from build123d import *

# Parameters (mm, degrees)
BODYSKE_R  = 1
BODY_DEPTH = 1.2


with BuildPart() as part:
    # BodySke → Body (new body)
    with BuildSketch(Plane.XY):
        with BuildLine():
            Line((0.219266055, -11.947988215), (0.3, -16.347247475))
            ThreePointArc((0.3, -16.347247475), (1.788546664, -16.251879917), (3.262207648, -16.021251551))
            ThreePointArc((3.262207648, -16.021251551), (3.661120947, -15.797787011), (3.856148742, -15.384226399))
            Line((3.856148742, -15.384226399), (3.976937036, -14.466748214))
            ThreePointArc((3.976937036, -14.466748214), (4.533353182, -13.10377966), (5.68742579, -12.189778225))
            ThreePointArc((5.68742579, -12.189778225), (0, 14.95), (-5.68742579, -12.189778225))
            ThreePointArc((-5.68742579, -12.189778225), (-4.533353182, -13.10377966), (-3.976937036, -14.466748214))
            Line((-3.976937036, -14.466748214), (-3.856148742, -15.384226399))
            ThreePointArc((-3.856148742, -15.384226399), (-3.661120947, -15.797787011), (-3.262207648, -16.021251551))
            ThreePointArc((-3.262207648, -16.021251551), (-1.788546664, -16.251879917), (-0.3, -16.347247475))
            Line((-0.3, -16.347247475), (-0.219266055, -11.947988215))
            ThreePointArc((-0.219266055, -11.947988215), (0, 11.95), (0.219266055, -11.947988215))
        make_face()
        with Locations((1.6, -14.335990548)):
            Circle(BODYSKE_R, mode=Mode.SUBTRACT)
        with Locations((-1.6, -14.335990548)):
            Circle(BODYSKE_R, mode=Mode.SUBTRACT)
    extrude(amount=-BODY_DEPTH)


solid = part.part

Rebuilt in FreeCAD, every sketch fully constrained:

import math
import FreeCAD as App
import Part
import Sketcher
from FreeCAD import Vector
Q = App.Units.Quantity

doc = App.newDocument("Part")
params = doc.addObject("Spreadsheet::Sheet", "Params")
for row, (alias, value) in enumerate([
    ("sketch1_diameter", "2 mm"),
    ("sketch1_radius", "16.35 mm"),
    ("sketch1_radius2", "0.75 mm"),
    ("sketch1_radius3", "11.95 mm"),
    ("pad1_length", "1.2 mm"),
], start=1):
    params.set(f"A{row}", alias)
    params.set(f"B{row}", "=" + value)
    params.setAlias(f"B{row}", alias)

body = doc.addObject("PartDesign::Body", "Body")

# Sketch on XY plane
sketch1 = doc.addObject("Sketcher::SketchObject", "Sketch")
body.addObject(sketch1)
sketch1.AttachmentSupport = (doc.XY_Plane, [""])
sketch1.MapMode = "FlatFace"
sketch1.addGeometry([
    Part.LineSegment(Vector(0.22, -11.95, 0), Vector(0.3, -16.35, 0)),  # 0
    Part.ArcOfCircle(Part.Circle(Vector(0, 0, 0), Vector(0, 0, 1), 16.35), math.radians(-88.95), math.radians(-78.49)),  # 1
    Part.ArcOfCircle(Part.Circle(Vector(3.11, -15.29, 0), Vector(0, 0, 1), 0.75), math.radians(-78), math.radians(-7)),  # 2
    Part.LineSegment(Vector(3.86, -15.38, 0), Vector(3.98, -14.47, 0)),  # 3
    Part.ArcOfCircle(Part.Circle(Vector(6.85, -14.85, 0), Vector(0, 0, 1), 2.9), math.radians(114), math.radians(172)),  # 4
    Part.ArcOfCircle(Part.Circle(Vector(0, 0.78, 0), Vector(0, 0, 1), 14.17), math.radians(-66), math.radians(246)),  # 5
    Part.ArcOfCircle(Part.Circle(Vector(-6.85, -14.85, 0), Vector(0, 0, 1), 2.9), math.radians(8), math.radians(66)),  # 6
    Part.LineSegment(Vector(-3.98, -14.47, 0), Vector(-3.86, -15.38, 0)),  # 7
    Part.ArcOfCircle(Part.Circle(Vector(-3.11, -15.29, 0), Vector(0, 0, 1), 0.75), math.radians(-173), math.radians(-102)),  # 8
    Part.ArcOfCircle(Part.Circle(Vector(0, 0, 0), Vector(0, 0, 1), 16.35), math.radians(-101.51), math.radians(-91.05)),  # 9
    Part.LineSegment(Vector(-0.3, -16.35, 0), Vector(-0.22, -11.95, 0)),  # 10
    Part.ArcOfCircle(Part.Circle(Vector(0, 0, 0), Vector(0, 0, 1), 11.95), math.radians(-89), math.radians(269)),  # 11
    Part.Circle(Vector(-1.6, -14.34, 0), Vector(0, 0, 1), 1),  # 12
    Part.Circle(Vector(1.6, -14.34, 0), Vector(0, 0, 1), 1),  # 13
], False)
sketch1.addConstraint([
    Sketcher.Constraint("Coincident", 0, 2, 1, 1),
    Sketcher.Constraint("Tangent", 1, 2, 2, 1),
    Sketcher.Constraint("Tangent", 2, 2, 3, 1),
    Sketcher.Constraint("Tangent", 3, 2, 4, 2),
    Sketcher.Constraint("Tangent", 4, 1, 5, 1),
    Sketcher.Constraint("Tangent", 5, 2, 6, 2),
    Sketcher.Constraint("Tangent", 6, 1, 7, 1),
    Sketcher.Constraint("Tangent", 7, 2, 8, 1),
    Sketcher.Constraint("Tangent", 8, 2, 9, 1),
    Sketcher.Constraint("Coincident", 9, 2, 10, 1),
    Sketcher.Constraint("Coincident", 10, 2, 11, 2),
    Sketcher.Constraint("Coincident", 11, 1, 0, 1),
    Sketcher.Constraint("Coincident", 1, 3, -1, 1),
    Sketcher.Constraint("Coincident", 9, 3, -1, 1),
    Sketcher.Constraint("Coincident", 11, 3, -1, 1),
    Sketcher.Constraint("Equal", 4, 6),
    Sketcher.Constraint("Equal", 2, 8),
    Sketcher.Constraint("Equal", 1, 9),
    Sketcher.Constraint("Equal", 12, 13),
    Sketcher.Constraint("Symmetric", 4, 3, 6, 3, -2),
    Sketcher.Constraint("Symmetric", 12, 3, 13, 3, -2),
    Sketcher.Constraint("Horizontal", 2, 3, 8, 3),
    Sketcher.Constraint("Horizontal", 0, 2, 9, 2),
    Sketcher.Constraint("Horizontal", 10, 2, 11, 1),
    Sketcher.Constraint("Diameter", 12, 2.0),
    Sketcher.Constraint("Radius", 1, 16.35),
    Sketcher.Constraint("Radius", 2, 0.75),
    Sketcher.Constraint("Radius", 11, 11.95),
    Sketcher.Constraint("Angle", 3, Q("82.5 deg")),
    Sketcher.Constraint("DistanceX", 12, 3, -1, 1, 1.6),
    Sketcher.Constraint("DistanceX", -1, 1, 0, 2, 0.3),
    Sketcher.Constraint("Radius", 5, 14.165819),
    Sketcher.Constraint("Radius", 4, 2.899352),
    Sketcher.Constraint("DistanceY", 6, 3, 12, 3, 0.509199),
    Sketcher.Constraint("DistanceY", 0, 2, 6, 1, 1.880499),
    Sketcher.Constraint("DistanceX", 8, 3, 10, 2, 2.893299),
    Sketcher.Constraint("DistanceY", 2, 3, -1, 1, 15.286332),
])
sketch1.setExpression("Constraints[24]", "Params.sketch1_diameter")
sketch1.setExpression("Constraints[25]", "Params.sketch1_radius")
sketch1.setExpression("Constraints[26]", "Params.sketch1_radius2")
sketch1.setExpression("Constraints[27]", "Params.sketch1_radius3")
pad1 = doc.addObject("PartDesign::Pad", "Pad")
body.addObject(pad1)
pad1.Profile = sketch1
pad1.setExpression("Length", "Params.pad1_length")
pad1.Reversed = True

doc.recompute()
